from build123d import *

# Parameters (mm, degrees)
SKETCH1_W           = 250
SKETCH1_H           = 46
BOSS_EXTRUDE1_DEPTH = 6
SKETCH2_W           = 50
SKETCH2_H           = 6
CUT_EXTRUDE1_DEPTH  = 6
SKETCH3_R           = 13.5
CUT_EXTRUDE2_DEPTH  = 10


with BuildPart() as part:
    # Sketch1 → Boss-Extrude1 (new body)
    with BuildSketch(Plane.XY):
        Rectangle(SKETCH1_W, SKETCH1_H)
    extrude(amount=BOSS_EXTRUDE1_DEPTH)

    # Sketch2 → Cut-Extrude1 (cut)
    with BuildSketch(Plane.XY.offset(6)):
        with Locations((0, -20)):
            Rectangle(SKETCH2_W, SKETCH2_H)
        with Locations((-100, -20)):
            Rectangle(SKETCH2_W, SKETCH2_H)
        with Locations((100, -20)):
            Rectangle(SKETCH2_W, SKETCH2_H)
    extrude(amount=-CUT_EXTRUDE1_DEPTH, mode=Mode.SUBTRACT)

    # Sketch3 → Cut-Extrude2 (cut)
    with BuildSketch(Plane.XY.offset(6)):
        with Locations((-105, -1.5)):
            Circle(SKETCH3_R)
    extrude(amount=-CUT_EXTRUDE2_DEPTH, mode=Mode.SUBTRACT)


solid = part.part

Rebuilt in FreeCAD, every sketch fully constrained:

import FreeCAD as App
import Part
import Sketcher
Q = App.Units.Quantity


def add_polygon(sketch, points):
    """Adds a closed chain of lines whose ends are joined by coincident constraints."""
    first, n = sketch.GeometryCount, len(points)
    for a, b in zip(points, points[1:] + points[:1]):
        sketch.addGeometry(Part.LineSegment(App.Vector(*a, 0), App.Vector(*b, 0)), False)
    for i in range(n):
        sketch.addConstraint(Sketcher.Constraint("Coincident", first + i, 2, first + (i + 1) % n, 1))

doc = App.newDocument("Part")
body = doc.addObject("PartDesign::Body", "Body")

# Sketch on XY plane
sketch1 = doc.addObject("Sketcher::SketchObject", "Sketch")
body.addObject(sketch1)
sketch1.AttachmentSupport = (doc.XY_Plane, [""])
sketch1.MapMode = "FlatFace"
add_polygon(sketch1, [(-125, 23), (-125, -23), (125, -23), (125, 23)])  # lines 0-3
sketch1.addConstraint([
    Sketcher.Constraint("Vertical", 0),
    Sketcher.Constraint("Horizontal", 1),
    Sketcher.Constraint("Vertical", 2),
    Sketcher.Constraint("Horizontal", 3),
    Sketcher.Constraint("Symmetric", 0, 2, 2, 2, -1, 1),
    Sketcher.Constraint("DistanceX", 1, 1, 1, 2, Q("250 mm")),
    Sketcher.Constraint("DistanceY", 0, 2, 0, 1, Q("46 mm")),
])
pad1 = doc.addObject("PartDesign::Pad", "Pad")
body.addObject(pad1)
pad1.Profile = sketch1
pad1.Length = 6

# Sketch on XY plane
sketch2 = doc.addObject("Sketcher::SketchObject", "Sketch001")
body.addObject(sketch2)
sketch2.AttachmentSupport = (doc.XY_Plane, [""])
sketch2.MapMode = "FlatFace"
sketch2.AttachmentOffset = App.Placement(App.Vector(0, 0, 6), App.Rotation())
add_polygon(sketch2, [(-25, -17), (-25, -23), (25, -23), (25, -17)])  # lines 0-3
add_polygon(sketch2, [(-125, -17), (-125, -23), (-75, -23), (-75, -17)])  # lines 4-7
add_polygon(sketch2, [(75, -17), (75, -23), (125, -23), (125, -17)])  # lines 8-11
sketch2.addConstraint([
    Sketcher.Constraint("Vertical", 0),
    Sketcher.Constraint("Horizontal", 1),
    Sketcher.Constraint("Vertical", 2),
    Sketcher.Constraint("Horizontal", 3),
    Sketcher.Constraint("Vertical", 4),
    Sketcher.Constraint("Horizontal", 5),
    Sketcher.Constraint("Vertical", 6),
    Sketcher.Constraint("Horizontal", 7),
    Sketcher.Constraint("Vertical", 8),
    Sketcher.Constraint("Horizontal", 9),
    Sketcher.Constraint("Vertical", 10),
    Sketcher.Constraint("Horizontal", 11),
    Sketcher.Constraint("Symmetric", 5, 2, 8, 2, -2),
    Sketcher.Constraint("Symmetric", 7, 2, 10, 2, -2),
    Sketcher.Constraint("Horizontal", 1, 2, 4, 2),
    Sketcher.Constraint("Horizontal", 3, 2, 6, 2),
    Sketcher.Constraint("Equal", 3, 5),
    Sketcher.Constraint("DistanceX", 1, 1, 1, 2, Q("50 mm")),
    Sketcher.Constraint("DistanceY", 0, 2, 0, 1, Q("6 mm")),
    Sketcher.Constraint("DistanceX", 0, 2, -1, 1, Q("25 mm")),
    Sketcher.Constraint("DistanceY", 0, 2, -1, 1, Q("23 mm")),
    Sketcher.Constraint("DistanceX", 4, 2, -1, 1, Q("125 mm")),
])
pocket1 = doc.addObject("PartDesign::Pocket", "Pocket")
body.addObject(pocket1)
pocket1.Profile = sketch2
pocket1.Length = 6

# Sketch on XY plane
sketch3 = doc.addObject("Sketcher::SketchObject", "Sketch002")
body.addObject(sketch3)
sketch3.AttachmentSupport = (doc.XY_Plane, [""])
sketch3.MapMode = "FlatFace"
sketch3.AttachmentOffset = App.Placement(App.Vector(0, 0, 6), App.Rotation())
sketch3.addGeometry(Part.Circle(App.Vector(-105, -2, 0), App.Vector(0, 0, 1), 14), False)
sketch3.addConstraint([
    Sketcher.Constraint("Diameter", 0, Q("27 mm")),
    Sketcher.Constraint("DistanceX", 0, 3, -1, 1, Q("105 mm")),
    Sketcher.Constraint("DistanceY", 0, 3, -1, 1, Q("1.5 mm")),
])
pocket2 = doc.addObject("PartDesign::Pocket", "Pocket001")
body.addObject(pocket2)
pocket2.Profile = sketch3
pocket2.Length = 10

doc.recompute()
